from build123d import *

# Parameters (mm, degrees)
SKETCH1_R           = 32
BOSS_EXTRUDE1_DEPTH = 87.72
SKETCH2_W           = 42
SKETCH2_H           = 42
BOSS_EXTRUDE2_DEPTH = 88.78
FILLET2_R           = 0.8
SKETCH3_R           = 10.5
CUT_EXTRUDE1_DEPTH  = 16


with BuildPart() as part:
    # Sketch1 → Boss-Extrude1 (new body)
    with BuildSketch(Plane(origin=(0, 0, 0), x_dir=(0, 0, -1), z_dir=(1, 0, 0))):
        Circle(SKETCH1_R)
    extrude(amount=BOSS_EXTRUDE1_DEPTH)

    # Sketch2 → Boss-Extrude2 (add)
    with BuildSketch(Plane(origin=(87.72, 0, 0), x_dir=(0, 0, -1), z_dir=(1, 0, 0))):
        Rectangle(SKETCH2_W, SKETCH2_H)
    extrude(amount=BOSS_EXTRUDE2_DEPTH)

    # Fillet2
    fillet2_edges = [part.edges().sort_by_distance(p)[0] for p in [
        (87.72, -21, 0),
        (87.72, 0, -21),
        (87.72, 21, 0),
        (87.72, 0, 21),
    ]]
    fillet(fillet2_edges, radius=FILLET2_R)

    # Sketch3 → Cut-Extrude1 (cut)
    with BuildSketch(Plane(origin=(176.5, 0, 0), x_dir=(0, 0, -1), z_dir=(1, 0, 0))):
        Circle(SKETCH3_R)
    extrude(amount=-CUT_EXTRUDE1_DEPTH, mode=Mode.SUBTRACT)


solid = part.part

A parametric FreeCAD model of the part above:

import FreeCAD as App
import Part
import Sketcher
Q = App.Units.Quantity


def edges_at(feature, points):
    """Names of the edges that pass closest to the given points."""
    edges = feature.Shape.Edges
    near = lambda p: min(range(len(edges)), key=lambda i: edges[i].distToShape(Part.Vertex(*p))[0])
    return sorted({f"Edge{near(p) + 1}" for p in points})

doc = App.newDocument("Part")
body = doc.addObject("PartDesign::Body", "Body")

# Sketch on YZ plane
sketch1 = body.newObject("Sketcher::SketchObject", "Sketch")
sketch1.AttachmentSupport = (doc.getObject("YZ_Plane"), [""])
sketch1.MapMode = "FlatFace"
sketch1.addGeometry(Part.Circle(App.Vector(0, 0, 0), App.Vector(0, 0, 1), 32), False)
sketch1.addConstraint([
    Sketcher.Constraint("Coincident", 0, 3, -1, 1),
    Sketcher.Constraint("Diameter", 0, Q("64 mm")),
])
pad1 = body.newObject("PartDesign::Pad", "Pad")
pad1.Profile = sketch1
pad1.Length = 87.72

# Sketch on YZ plane
sketch2 = body.newObject("Sketcher::SketchObject", "Sketch001")
sketch2.AttachmentSupport = (doc.getObject("YZ_Plane"), [""])
sketch2.MapMode = "FlatFace"
sketch2.AttachmentOffset = App.Placement(App.Vector(0, 0, 87.72), App.Rotation())
sketch2.addGeometry([
    Part.LineSegment(App.Vector(21, 21, 0), App.Vector(-21, 21, 0)),
    Part.LineSegment(App.Vector(-21, 21, 0), App.Vector(-21, -21, 0)),
    Part.LineSegment(App.Vector(-21, -21, 0), App.Vector(21, -21, 0)),
    Part.LineSegment(App.Vector(21, -21, 0), App.Vector(21, 21, 0)),
], False)
sketch2.addConstraint([
    Sketcher.Constraint("Coincident", 0, 2, 1, 1),
    Sketcher.Constraint("Coincident", 1, 2, 2, 1),
    Sketcher.Constraint("Coincident", 2, 2, 3, 1),
    Sketcher.Constraint("Coincident", 3, 2, 0, 1),
    Sketcher.Constraint("Horizontal", 0),
    Sketcher.Constraint("Vertical", 1),
    Sketcher.Constraint("Horizontal", 2),
    Sketcher.Constraint("Vertical", 3),
    Sketcher.Constraint("Symmetric", 0, 2, 2, 2, -1, 1),
    Sketcher.Constraint("Equal", 2, 1),
    Sketcher.Constraint("DistanceX", 0, 2, 0, 1, Q("42 mm")),
])
pad2 = body.newObject("PartDesign::Pad", "Pad001")
pad2.Profile = sketch2
pad2.Length = 88.78
doc.recompute()

fillet = body.newObject("PartDesign::Fillet", "Fillet")
fillet.Base = (pad2, edges_at(pad2, [
    (87.72, -21, 0),
    (87.72, 0, -21),
    (87.72, 21, 0),
    (87.72, 0, 21),
]))
fillet.Radius = 0.8

# Sketch on YZ plane
sketch3 = body.newObject("Sketcher::SketchObject", "Sketch002")
sketch3.AttachmentSupport = (doc.getObject("YZ_Plane"), [""])
sketch3.MapMode = "FlatFace"
sketch3.AttachmentOffset = App.Placement(App.Vector(0, 0, 176.5), App.Rotation())
sketch3.addGeometry(Part.Circle(App.Vector(0, 0, 0), App.Vector(0, 0, 1), 10), False)
sketch3.addConstraint([
    Sketcher.Constraint("Coincident", 0, 3, -1, 1),
    Sketcher.Constraint("Diameter", 0, Q("21 mm")),
])
pocket1 = body.newObject("PartDesign::Pocket", "Pocket")
pocket1.Profile = sketch3
pocket1.Length = 16

doc.recompute()
